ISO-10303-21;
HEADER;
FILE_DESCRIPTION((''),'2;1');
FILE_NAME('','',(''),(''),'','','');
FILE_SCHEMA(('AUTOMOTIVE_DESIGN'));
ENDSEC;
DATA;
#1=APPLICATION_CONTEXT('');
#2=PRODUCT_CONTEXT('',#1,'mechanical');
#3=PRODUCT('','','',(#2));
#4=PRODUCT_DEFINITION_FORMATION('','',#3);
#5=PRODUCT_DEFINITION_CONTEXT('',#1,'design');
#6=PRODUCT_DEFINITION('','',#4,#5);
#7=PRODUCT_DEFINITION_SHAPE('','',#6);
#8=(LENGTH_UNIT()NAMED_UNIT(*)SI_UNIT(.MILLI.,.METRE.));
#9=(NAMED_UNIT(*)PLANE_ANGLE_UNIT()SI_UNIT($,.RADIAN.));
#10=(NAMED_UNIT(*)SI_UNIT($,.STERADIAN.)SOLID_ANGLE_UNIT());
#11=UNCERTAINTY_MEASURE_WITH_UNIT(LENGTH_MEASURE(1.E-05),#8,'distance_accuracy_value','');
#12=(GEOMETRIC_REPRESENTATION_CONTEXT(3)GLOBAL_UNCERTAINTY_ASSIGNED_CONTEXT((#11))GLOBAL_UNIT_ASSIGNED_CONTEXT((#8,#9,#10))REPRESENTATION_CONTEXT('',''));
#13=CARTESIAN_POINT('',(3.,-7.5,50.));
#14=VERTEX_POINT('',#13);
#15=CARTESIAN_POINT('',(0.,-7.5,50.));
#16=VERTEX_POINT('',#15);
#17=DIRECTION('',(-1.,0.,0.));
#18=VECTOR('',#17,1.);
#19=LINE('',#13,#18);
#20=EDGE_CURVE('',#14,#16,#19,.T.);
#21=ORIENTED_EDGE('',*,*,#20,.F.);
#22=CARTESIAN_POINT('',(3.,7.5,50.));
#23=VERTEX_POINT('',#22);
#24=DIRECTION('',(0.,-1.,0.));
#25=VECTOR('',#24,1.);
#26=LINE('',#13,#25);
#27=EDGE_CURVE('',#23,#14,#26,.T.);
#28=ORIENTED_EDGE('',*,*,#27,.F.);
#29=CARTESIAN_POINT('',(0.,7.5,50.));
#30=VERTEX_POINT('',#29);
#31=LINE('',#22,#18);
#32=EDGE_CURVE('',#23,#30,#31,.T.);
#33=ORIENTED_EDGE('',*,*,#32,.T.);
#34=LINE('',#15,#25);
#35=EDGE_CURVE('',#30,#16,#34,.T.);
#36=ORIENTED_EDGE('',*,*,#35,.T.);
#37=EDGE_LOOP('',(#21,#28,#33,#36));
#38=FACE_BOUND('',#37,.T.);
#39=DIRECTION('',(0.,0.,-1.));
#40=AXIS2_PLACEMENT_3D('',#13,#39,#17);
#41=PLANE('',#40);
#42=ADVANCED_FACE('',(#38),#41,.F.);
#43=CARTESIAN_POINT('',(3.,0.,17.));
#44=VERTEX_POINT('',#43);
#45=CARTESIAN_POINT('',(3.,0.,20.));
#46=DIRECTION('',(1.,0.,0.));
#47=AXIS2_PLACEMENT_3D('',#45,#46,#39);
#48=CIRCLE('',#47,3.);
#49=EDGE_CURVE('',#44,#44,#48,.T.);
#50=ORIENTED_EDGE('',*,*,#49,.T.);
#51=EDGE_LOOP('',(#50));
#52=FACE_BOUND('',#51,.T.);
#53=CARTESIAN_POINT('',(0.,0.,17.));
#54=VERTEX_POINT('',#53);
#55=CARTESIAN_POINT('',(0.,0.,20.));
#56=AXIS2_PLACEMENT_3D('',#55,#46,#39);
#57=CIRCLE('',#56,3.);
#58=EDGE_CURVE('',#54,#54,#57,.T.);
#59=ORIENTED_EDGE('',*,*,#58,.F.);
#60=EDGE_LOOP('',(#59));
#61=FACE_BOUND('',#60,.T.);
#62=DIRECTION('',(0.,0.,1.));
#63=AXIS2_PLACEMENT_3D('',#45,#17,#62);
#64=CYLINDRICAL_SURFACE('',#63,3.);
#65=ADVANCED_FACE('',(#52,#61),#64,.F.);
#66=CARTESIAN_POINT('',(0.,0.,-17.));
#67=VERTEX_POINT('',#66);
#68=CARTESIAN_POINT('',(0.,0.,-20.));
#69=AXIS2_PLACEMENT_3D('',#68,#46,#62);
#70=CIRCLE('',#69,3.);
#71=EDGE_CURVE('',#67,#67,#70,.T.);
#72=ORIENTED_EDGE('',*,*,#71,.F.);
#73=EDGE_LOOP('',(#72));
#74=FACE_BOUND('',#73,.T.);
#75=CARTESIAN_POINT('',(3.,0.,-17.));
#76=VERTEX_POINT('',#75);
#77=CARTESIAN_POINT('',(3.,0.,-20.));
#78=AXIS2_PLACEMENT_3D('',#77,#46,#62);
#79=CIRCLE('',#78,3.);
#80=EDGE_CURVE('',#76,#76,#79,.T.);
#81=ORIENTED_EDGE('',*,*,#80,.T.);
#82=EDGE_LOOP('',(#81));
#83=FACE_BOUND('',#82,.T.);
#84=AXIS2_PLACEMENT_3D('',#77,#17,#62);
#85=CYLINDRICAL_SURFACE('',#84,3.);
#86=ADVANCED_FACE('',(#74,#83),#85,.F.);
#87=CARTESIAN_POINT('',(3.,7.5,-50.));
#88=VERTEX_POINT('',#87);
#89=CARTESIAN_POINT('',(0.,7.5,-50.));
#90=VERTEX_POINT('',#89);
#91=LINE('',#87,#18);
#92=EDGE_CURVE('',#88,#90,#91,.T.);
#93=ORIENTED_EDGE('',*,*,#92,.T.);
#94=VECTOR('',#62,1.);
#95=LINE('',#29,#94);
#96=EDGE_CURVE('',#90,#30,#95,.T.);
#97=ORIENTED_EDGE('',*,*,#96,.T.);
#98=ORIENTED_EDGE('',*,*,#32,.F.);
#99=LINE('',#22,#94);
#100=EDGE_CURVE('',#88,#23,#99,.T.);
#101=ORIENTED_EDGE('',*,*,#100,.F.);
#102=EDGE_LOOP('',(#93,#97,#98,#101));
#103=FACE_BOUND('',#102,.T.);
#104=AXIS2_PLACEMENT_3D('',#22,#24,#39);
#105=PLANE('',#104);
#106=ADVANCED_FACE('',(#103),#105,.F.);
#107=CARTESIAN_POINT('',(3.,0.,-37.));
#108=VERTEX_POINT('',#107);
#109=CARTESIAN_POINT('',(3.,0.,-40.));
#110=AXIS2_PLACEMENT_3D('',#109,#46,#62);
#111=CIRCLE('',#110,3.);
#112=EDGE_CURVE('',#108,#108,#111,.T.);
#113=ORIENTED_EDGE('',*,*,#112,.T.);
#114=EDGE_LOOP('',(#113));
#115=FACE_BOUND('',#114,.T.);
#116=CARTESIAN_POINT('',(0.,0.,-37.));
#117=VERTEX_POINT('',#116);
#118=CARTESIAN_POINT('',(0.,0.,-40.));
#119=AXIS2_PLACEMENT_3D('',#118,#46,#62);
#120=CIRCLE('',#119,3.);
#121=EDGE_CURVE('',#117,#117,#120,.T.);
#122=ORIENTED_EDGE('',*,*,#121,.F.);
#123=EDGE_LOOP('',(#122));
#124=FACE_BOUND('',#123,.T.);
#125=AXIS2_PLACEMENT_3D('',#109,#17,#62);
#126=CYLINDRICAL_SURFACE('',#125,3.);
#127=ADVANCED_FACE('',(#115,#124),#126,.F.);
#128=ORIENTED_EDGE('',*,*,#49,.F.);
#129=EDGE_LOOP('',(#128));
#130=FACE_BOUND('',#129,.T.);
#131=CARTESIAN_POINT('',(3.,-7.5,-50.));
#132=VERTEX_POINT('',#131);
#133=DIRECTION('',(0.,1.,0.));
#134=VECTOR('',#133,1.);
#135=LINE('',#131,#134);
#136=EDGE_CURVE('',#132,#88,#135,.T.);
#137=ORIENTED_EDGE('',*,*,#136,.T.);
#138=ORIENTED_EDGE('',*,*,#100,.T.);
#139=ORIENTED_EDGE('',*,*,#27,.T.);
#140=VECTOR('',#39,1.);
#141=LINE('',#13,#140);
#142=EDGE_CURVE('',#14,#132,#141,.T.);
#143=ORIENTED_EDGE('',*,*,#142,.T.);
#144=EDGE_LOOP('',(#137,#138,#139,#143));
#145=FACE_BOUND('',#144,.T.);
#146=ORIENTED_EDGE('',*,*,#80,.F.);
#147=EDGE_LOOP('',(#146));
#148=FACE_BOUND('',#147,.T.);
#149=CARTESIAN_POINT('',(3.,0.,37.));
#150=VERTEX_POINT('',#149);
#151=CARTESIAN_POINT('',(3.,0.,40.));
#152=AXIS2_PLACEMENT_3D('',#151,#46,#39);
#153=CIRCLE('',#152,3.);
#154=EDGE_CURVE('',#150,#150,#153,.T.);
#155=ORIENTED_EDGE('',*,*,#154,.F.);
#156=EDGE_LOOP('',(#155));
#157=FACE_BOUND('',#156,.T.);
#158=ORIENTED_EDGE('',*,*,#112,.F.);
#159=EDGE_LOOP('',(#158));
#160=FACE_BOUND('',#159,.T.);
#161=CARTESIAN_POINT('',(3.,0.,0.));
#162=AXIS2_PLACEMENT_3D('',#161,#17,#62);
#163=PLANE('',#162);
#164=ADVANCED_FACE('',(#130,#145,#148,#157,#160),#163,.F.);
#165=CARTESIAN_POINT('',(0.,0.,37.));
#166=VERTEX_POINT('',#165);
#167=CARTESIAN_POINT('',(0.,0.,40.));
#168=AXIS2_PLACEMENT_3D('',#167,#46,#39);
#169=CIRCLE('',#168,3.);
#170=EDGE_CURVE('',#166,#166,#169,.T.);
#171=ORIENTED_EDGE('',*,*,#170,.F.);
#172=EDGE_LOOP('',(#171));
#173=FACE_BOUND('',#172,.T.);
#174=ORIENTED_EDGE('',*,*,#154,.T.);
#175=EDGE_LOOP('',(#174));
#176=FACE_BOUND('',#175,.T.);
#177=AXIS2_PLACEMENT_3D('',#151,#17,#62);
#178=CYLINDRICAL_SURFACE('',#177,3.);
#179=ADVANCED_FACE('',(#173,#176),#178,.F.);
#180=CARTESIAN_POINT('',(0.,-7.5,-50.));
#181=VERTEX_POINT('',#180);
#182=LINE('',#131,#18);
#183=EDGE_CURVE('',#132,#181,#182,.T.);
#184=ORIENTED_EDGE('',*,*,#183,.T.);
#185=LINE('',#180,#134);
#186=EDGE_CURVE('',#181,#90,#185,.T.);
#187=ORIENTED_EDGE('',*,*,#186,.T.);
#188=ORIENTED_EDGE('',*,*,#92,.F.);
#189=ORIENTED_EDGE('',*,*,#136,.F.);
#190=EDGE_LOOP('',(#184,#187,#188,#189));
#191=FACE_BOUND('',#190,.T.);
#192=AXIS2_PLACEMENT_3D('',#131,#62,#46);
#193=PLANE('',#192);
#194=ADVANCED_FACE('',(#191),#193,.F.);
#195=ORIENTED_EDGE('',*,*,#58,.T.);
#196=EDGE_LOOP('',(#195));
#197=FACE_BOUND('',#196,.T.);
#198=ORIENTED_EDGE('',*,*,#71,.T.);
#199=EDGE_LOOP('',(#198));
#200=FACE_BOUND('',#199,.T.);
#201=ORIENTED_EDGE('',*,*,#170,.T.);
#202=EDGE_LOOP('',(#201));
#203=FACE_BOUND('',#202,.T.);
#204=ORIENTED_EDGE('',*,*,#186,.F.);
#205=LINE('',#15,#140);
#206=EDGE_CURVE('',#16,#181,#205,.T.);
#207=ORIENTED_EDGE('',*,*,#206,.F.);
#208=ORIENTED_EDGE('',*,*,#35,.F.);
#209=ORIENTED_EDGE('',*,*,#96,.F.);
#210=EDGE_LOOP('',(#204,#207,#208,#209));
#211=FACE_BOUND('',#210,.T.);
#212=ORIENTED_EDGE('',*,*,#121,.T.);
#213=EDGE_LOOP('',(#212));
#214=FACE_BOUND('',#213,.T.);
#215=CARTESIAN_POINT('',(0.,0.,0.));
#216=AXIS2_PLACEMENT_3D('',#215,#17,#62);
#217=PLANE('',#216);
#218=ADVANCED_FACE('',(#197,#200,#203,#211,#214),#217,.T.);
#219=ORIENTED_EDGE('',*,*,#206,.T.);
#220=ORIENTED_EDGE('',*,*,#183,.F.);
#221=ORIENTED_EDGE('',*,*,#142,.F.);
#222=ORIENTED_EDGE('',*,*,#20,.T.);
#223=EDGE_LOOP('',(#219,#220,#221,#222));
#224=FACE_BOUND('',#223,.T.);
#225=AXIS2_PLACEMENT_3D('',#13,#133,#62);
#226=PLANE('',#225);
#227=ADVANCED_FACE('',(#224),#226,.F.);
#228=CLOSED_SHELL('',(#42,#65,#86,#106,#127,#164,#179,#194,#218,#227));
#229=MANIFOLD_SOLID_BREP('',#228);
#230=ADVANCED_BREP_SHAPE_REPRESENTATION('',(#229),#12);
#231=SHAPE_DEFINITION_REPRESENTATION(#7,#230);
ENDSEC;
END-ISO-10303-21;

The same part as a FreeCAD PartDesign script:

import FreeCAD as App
import Part
import Sketcher
from FreeCAD import Vector


def add_polygon(sketch, points):
    """Adds a closed chain of lines whose ends are joined by coincident constraints."""
    first, n = sketch.GeometryCount, len(points)
    for a, b in zip(points, points[1:] + points[:1]):
        sketch.addGeometry(Part.LineSegment(App.Vector(*a, 0), App.Vector(*b, 0)), False)
    for i in range(n):
        sketch.addConstraint(Sketcher.Constraint("Coincident", first + i, 2, first + (i + 1) % n, 1))

doc = App.newDocument("Part")
body = doc.addObject("PartDesign::Body", "Body")

# Sketch on YZ plane
sketch1 = body.newObject("Sketcher::SketchObject", "Sketch")
sketch1.AttachmentSupport = (doc.getObject("YZ_Plane"), [""])
sketch1.MapMode = "FlatFace"
add_polygon(sketch1, [(7.5, 50), (-7.5, 50), (-7.5, -50), (7.5, -50)])  # lines 0-3
sketch1.addGeometry(Part.Circle(Vector(0, 40, 0), Vector(0, 0, 1), 3), False)  # 4
sketch1.addGeometry(Part.Circle(Vector(0, 20, 0), Vector(0, 0, 1), 3), False)  # 5
sketch1.addGeometry(Part.Circle(Vector(0, -20, 0), Vector(0, 0, 1), 3), False)  # 6
sketch1.addGeometry(Part.Circle(Vector(0, -40, 0), Vector(0, 0, 1), 3), False)  # 7
sketch1.addConstraint([
    Sketcher.Constraint("Horizontal", 0),
    Sketcher.Constraint("Vertical", 1),
    Sketcher.Constraint("Horizontal", 2),
    Sketcher.Constraint("Vertical", 3),
    Sketcher.Constraint("Equal", 4, 5),
    Sketcher.Constraint("Equal", 5, 6),
    Sketcher.Constraint("Equal", 6, 7),
    Sketcher.Constraint("Symmetric", 5, 3, 6, 3, -1, 1),
    Sketcher.Constraint("Symmetric", 4, 3, 7, 3, -1, 1),
    Sketcher.Constraint("Symmetric", 0, 2, 2, 2, -1, 1),
    Sketcher.Constraint("PointOnObject", 4, 3, -2),
    Sketcher.Constraint("PointOnObject", 5, 3, -2),
    Sketcher.Constraint("Diameter", 4, 6.0),
    Sketcher.Constraint("DistanceX", 0, 2, 0, 1, 15.0),
    Sketcher.Constraint("DistanceY", 1, 2, 1, 1, 100.0),
    Sketcher.Constraint("DistanceY", -1, 1, 4, 3, 40.0),
    Sketcher.Constraint("DistanceY", -1, 1, 5, 3, 20.0),
])
pad1 = body.newObject("PartDesign::Pad", "Pad")
pad1.Profile = sketch1
pad1.Length = 3

doc.recompute()
